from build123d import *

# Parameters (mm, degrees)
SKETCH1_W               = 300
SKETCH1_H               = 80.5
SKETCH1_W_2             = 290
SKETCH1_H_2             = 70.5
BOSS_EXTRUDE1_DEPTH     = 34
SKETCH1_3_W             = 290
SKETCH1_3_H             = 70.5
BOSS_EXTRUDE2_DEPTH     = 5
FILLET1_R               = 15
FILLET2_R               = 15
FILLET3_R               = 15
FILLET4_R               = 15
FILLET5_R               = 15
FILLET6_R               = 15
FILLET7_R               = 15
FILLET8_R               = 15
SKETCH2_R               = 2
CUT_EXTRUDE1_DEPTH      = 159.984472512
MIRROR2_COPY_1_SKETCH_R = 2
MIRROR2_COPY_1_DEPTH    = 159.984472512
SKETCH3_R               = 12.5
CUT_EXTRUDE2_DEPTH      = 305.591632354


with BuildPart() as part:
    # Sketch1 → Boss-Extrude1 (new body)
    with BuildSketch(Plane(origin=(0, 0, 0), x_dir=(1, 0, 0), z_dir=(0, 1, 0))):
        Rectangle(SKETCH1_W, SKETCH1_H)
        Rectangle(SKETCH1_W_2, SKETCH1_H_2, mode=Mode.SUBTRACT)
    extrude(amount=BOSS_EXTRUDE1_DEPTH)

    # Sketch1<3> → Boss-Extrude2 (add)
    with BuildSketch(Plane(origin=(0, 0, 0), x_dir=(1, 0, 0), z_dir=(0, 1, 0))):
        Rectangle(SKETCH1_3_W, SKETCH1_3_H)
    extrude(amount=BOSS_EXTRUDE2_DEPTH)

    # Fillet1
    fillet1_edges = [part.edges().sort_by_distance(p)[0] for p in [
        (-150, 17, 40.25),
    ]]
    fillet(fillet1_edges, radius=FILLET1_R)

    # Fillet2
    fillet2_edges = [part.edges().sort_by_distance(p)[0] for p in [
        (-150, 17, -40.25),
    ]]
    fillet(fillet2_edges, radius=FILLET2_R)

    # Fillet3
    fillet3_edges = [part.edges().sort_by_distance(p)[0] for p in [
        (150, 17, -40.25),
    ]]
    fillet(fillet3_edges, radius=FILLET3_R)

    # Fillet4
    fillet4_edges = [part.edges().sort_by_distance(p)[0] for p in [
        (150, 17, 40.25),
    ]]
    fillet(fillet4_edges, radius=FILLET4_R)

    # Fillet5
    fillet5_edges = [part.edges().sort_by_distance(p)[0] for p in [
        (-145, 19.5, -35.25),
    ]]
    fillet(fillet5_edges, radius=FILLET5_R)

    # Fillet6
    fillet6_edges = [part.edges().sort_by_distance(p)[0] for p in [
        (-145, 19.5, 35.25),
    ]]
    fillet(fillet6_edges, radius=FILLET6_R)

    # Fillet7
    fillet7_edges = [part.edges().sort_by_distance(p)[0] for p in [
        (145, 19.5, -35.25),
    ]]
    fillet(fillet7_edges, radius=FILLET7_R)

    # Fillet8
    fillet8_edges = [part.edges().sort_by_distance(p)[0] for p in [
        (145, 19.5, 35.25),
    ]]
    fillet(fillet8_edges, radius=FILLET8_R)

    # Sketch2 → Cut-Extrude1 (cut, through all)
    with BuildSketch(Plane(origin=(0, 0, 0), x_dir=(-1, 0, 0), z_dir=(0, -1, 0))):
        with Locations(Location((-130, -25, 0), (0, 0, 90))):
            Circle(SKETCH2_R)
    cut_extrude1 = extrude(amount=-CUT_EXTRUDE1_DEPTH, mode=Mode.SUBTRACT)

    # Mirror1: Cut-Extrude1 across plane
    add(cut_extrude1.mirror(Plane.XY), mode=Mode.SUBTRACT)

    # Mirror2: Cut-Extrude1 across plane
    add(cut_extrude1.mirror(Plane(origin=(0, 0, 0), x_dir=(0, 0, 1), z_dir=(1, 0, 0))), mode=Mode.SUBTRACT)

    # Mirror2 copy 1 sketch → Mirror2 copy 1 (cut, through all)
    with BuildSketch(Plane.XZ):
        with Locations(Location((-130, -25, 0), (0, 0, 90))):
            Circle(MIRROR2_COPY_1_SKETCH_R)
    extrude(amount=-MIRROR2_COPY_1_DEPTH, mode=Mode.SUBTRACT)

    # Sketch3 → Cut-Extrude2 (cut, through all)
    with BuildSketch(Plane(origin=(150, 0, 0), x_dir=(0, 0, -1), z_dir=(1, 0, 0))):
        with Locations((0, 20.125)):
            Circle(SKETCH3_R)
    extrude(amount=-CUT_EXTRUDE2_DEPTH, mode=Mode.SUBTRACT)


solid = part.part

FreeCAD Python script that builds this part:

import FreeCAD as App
import Part
import Sketcher

V = App.Vector


def edges_at(feature, points):
    """Names of the edges that pass closest to the given points."""
    edges = feature.Shape.Edges
    near = lambda p: min(range(len(edges)), key=lambda i: edges[i].distToShape(Part.Vertex(*p))[0])
    return sorted({f"Edge{near(p) + 1}" for p in points})

doc = App.newDocument("Part")
body = doc.addObject("PartDesign::Body", "Body")

# Sketch on XZ plane
sketch1 = body.newObject("Sketcher::SketchObject", "Sketch")
sketch1.AttachmentSupport = (doc.getObject("XZ_Plane"), [""])
sketch1.MapMode = "FlatFace"
sketch1.addGeometry(Part.LineSegment(V(-150, -40, 0), V(-150, 40, 0)), False)
sketch1.addGeometry(Part.LineSegment(V(-150, 40, 0), V(150, 40, 0)), False)
sketch1.addGeometry(Part.LineSegment(V(150, 40, 0), V(150, -40, 0)), False)
sketch1.addGeometry(Part.LineSegment(V(150, -40, 0), V(-150, -40, 0)), False)
sketch1.addGeometry(Part.LineSegment(V(145, 35, 0), V(-145, 35, 0)), False)
sketch1.addGeometry(Part.LineSegment(V(-145, 35, 0), V(-145, -35, 0)), False)
sketch1.addGeometry(Part.LineSegment(V(-145, -35, 0), V(145, -35, 0)), False)
sketch1.addGeometry(Part.LineSegment(V(145, -35, 0), V(145, 35, 0)), False)
sketch1.addConstraint(Sketcher.Constraint("Coincident", 0, 2, 1, 1))
sketch1.addConstraint(Sketcher.Constraint("Coincident", 1, 2, 2, 1))
sketch1.addConstraint(Sketcher.Constraint("Coincident", 2, 2, 3, 1))
sketch1.addConstraint(Sketcher.Constraint("Coincident", 3, 2, 0, 1))
sketch1.addConstraint(Sketcher.Constraint("Coincident", 4, 2, 5, 1))
sketch1.addConstraint(Sketcher.Constraint("Coincident", 5, 2, 6, 1))
sketch1.addConstraint(Sketcher.Constraint("Coincident", 6, 2, 7, 1))
sketch1.addConstraint(Sketcher.Constraint("Coincident", 7, 2, 4, 1))
sketch1.addConstraint(Sketcher.Constraint("Vertical", 0))
sketch1.addConstraint(Sketcher.Constraint("Horizontal", 1))
sketch1.addConstraint(Sketcher.Constraint("Vertical", 2))
sketch1.addConstraint(Sketcher.Constraint("Horizontal", 3))
sketch1.addConstraint(Sketcher.Constraint("Horizontal", 4))
sketch1.addConstraint(Sketcher.Constraint("Vertical", 5))
sketch1.addConstraint(Sketcher.Constraint("Horizontal", 6))
sketch1.addConstraint(Sketcher.Constraint("Vertical", 7))
sketch1.addConstraint(Sketcher.Constraint("Symmetric", 0, 2, 2, 2, -1, 1))
sketch1.addConstraint(Sketcher.Constraint("Symmetric", 4, 2, 6, 2, -1, 1))
sketch1.addConstraint(Sketcher.Constraint("DistanceX", 1, 1, 1, 2, 300.0))
sketch1.addConstraint(Sketcher.Constraint("DistanceX", 4, 2, 4, 1, 290.0))
sketch1.addConstraint(Sketcher.Constraint("DistanceY", 0, 1, 0, 2, 80.5))
sketch1.addConstraint(Sketcher.Constraint("DistanceY", 5, 2, 5, 1, 70.5))
pad1 = body.newObject("PartDesign::Pad", "Pad")
pad1.Profile = sketch1
pad1.Length = 34
pad1.Reversed = True

# Sketch on XZ plane
sketch2 = body.newObject("Sketcher::SketchObject", "Sketch001")
sketch2.AttachmentSupport = (doc.getObject("XZ_Plane"), [""])
sketch2.MapMode = "FlatFace"
sketch2.addGeometry(Part.LineSegment(V(-145, -35, 0), V(-145, 35, 0)), False)
sketch2.addGeometry(Part.LineSegment(V(-145, 35, 0), V(145, 35, 0)), False)
sketch2.addGeometry(Part.LineSegment(V(145, 35, 0), V(145, -35, 0)), False)
sketch2.addGeometry(Part.LineSegment(V(145, -35, 0), V(-145, -35, 0)), False)
sketch2.addConstraint(Sketcher.Constraint("Coincident", 0, 2, 1, 1))
sketch2.addConstraint(Sketcher.Constraint("Coincident", 1, 2, 2, 1))
sketch2.addConstraint(Sketcher.Constraint("Coincident", 2, 2, 3, 1))
sketch2.addConstraint(Sketcher.Constraint("Coincident", 3, 2, 0, 1))
sketch2.addConstraint(Sketcher.Constraint("Vertical", 0))
sketch2.addConstraint(Sketcher.Constraint("Horizontal", 1))
sketch2.addConstraint(Sketcher.Constraint("Vertical", 2))
sketch2.addConstraint(Sketcher.Constraint("Horizontal", 3))
sketch2.addConstraint(Sketcher.Constraint("Symmetric", 0, 2, 2, 2, -1, 1))
sketch2.addConstraint(Sketcher.Constraint("DistanceX", 1, 1, 1, 2, 290.0))
sketch2.addConstraint(Sketcher.Constraint("DistanceY", 0, 1, 0, 2, 70.5))
pad2 = body.newObject("PartDesign::Pad", "Pad001")
pad2.Profile = sketch2
pad2.Length = 5
pad2.Reversed = True
doc.recompute()

fillet = body.newObject("PartDesign::Fillet", "Fillet")
fillet.Base = (pad2, edges_at(pad2, [(-150, 17, 40.25)]))
fillet.Radius = 15
doc.recompute()

fillet2 = body.newObject("PartDesign::Fillet", "Fillet001")
fillet2.Base = (fillet, edges_at(fillet, [(-150, 17, -40.25)]))
fillet2.Radius = 15
doc.recompute()

fillet3 = body.newObject("PartDesign::Fillet", "Fillet002")
fillet3.Base = (fillet2, edges_at(fillet2, [(150, 17, -40.25)]))
fillet3.Radius = 15
doc.recompute()

fillet4 = body.newObject("PartDesign::Fillet", "Fillet003")
fillet4.Base = (fillet3, edges_at(fillet3, [(150, 17, 40.25)]))
fillet4.Radius = 15
doc.recompute()

fillet5 = body.newObject("PartDesign::Fillet", "Fillet004")
fillet5.Base = (fillet4, edges_at(fillet4, [(-145, 19.5, -35.25)]))
fillet5.Radius = 15
doc.recompute()

fillet6 = body.newObject("PartDesign::Fillet", "Fillet005")
fillet6.Base = (fillet5, edges_at(fillet5, [(-145, 19.5, 35.25)]))
fillet6.Radius = 15
doc.recompute()

fillet7 = body.newObject("PartDesign::Fillet", "Fillet006")
fillet7.Base = (fillet6, edges_at(fillet6, [(145, 19.5, -35.25)]))
fillet7.Radius = 15
doc.recompute()

fillet8 = body.newObject("PartDesign::Fillet", "Fillet007")
fillet8.Base = (fillet7, edges_at(fillet7, [(145, 19.5, 35.25)]))
fillet8.Radius = 15

# Sketch on XZ plane
sketch3 = body.newObject("Sketcher::SketchObject", "Sketch002")
sketch3.AttachmentSupport = (doc.getObject("XZ_Plane"), [""])
sketch3.MapMode = "FlatFace"
sketch3.addGeometry(Part.Circle(V(130, 25, 0), V(0, 0, 1), 2), False)
sketch3.addConstraint(Sketcher.Constraint("Diameter", 0, 4.0))
sketch3.addConstraint(Sketcher.Constraint("DistanceX", -1, 1, 0, 3, 130.0))
sketch3.addConstraint(Sketcher.Constraint("DistanceY", -1, 1, 0, 3, 25.0))
pocket1 = body.newObject("PartDesign::Pocket", "Pocket")
pocket1.Profile = sketch3
pocket1.Type = "ThroughAll"
doc.recompute()

mirrored = body.newObject("PartDesign::Mirrored", "Mirrored")
mirrored.Originals = [pocket1]
mirrored.MirrorPlane = (doc.getObject("XY_Plane"), [""])
body.Tip = mirrored
doc.recompute()

mirrored2 = body.newObject("PartDesign::Mirrored", "Mirrored001")
mirrored2.Originals = [pocket1]
mirrored2.MirrorPlane = (doc.getObject("YZ_Plane"), [""])
body.Tip = mirrored2

# Sketch on XZ plane
sketch4 = body.newObject("Sketcher::SketchObject", "Sketch003")
sketch4.AttachmentSupport = (doc.getObject("XZ_Plane"), [""])
sketch4.MapMode = "FlatFace"
sketch4.addGeometry(Part.Circle(V(-130, -25, 0), V(0, 0, 1), 2), False)
sketch4.addConstraint(Sketcher.Constraint("Diameter", 0, 4.0))
sketch4.addConstraint(Sketcher.Constraint("DistanceX", 0, 3, -1, 1, 130.0))
sketch4.addConstraint(Sketcher.Constraint("DistanceY", 0, 3, -1, 1, 25.0))
pocket2 = body.newObject("PartDesign::Pocket", "Pocket001")
pocket2.Profile = sketch4
pocket2.Type = "ThroughAll"

# Sketch on YZ plane
sketch5 = body.newObject("Sketcher::SketchObject", "Sketch004")
sketch5.AttachmentSupport = (doc.getObject("YZ_Plane"), [""])
sketch5.MapMode = "FlatFace"
sketch5.AttachmentOffset = App.Placement(V(0, 0, 150), App.Rotation())
sketch5.addGeometry(Part.Circle(V(20, 0, 0), V(0, 0, 1), 12), False)
sketch5.addConstraint(Sketcher.Constraint("PointOnObject", 0, 3, -1))
sketch5.addConstraint(Sketcher.Constraint("Diameter", 0, 25.0))
sketch5.addConstraint(Sketcher.Constraint("DistanceX", -1, 1, 0, 3, 20.125))
pocket3 = body.newObject("PartDesign::Pocket", "Pocket002")
pocket3.Profile = sketch5
pocket3.Type = "ThroughAll"

doc.recompute()
